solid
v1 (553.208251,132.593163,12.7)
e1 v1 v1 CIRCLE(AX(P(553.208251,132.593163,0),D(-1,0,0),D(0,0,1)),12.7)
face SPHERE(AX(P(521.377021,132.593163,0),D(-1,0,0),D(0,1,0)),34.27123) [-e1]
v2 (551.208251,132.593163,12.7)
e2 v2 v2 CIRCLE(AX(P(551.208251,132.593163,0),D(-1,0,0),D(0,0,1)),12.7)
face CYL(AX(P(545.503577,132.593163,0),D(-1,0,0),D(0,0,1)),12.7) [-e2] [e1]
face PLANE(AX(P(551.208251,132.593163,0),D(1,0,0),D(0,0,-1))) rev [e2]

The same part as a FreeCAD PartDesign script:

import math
import FreeCAD as App
import Part
import Sketcher
from FreeCAD import Vector
Q = App.Units.Quantity

doc = App.newDocument("Part")
params = doc.addObject("Spreadsheet::Sheet", "Params")
for row, (alias, value) in enumerate([
    ("sketch1_width", "2 mm"),
    ("sketch1_height", "12.7 mm"),
    ("sketch1_width2", "4.44 mm"),
    ("revolution_angle", "360 deg"),
], start=1):
    params.set(f"A{row}", alias)
    params.set(f"B{row}", "=" + value)
    params.setAlias(f"B{row}", alias)

body = doc.addObject("PartDesign::Body", "Body")

# Sketch on XY plane
sketch1 = body.newObject("Sketcher::SketchObject", "Sketch")
sketch1.AttachmentSupport = (doc.getObject("XY_Plane"), [""])
sketch1.MapMode = "FlatFace"
sketch1.addGeometry([
    Part.LineSegment(Vector(551.2, 145.3, 0), Vector(551.2, 132.6, 0)),
    Part.LineSegment(Vector(551.2, 132.6, 0), Vector(555.6, 132.6, 0)),
    Part.ArcOfCircle(Part.Circle(Vector(521.4, 132.6, 0), Vector(0, 0, 1), 34.3), math.radians(0), math.radians(22)),
    Part.LineSegment(Vector(553.2, 145.3, 0), Vector(551.2, 145.3, 0)),
], False)
sketch1.addGeometry(Part.LineSegment(Vector(521.4, 132.6, 0), Vector(555.6, 132.6, 0)), True)  # axis
sketch1.addConstraint([
    Sketcher.Constraint("Coincident", 0, 2, 1, 1),
    Sketcher.Constraint("Coincident", 1, 2, 2, 1),
    Sketcher.Constraint("Coincident", 2, 2, 3, 1),
    Sketcher.Constraint("Coincident", 3, 2, 0, 1),
    Sketcher.Constraint("Vertical", 0),
    Sketcher.Constraint("Horizontal", 1),
    Sketcher.Constraint("Horizontal", 3),
    Sketcher.Constraint("Horizontal", 4),
    Sketcher.Constraint("Coincident", 4, 1, 2, 3),
    Sketcher.Constraint("Coincident", 4, 2, 1, 2),
    Sketcher.Constraint("DistanceX", 3, 2, 3, 1, Q("2 mm")),
    Sketcher.Constraint("DistanceY", 0, 2, 0, 1, Q("12.7 mm")),
    Sketcher.Constraint("DistanceX", 1, 1, 1, 2, Q("4.44 mm")),
    Sketcher.Constraint("DistanceX", -1, 1, 2, 3, Q("521.377021 mm")),
    Sketcher.Constraint("DistanceY", -1, 1, 2, 3, Q("132.593163 mm")),
])
sketch1.setExpression("Constraints[10]", "Params.sketch1_width")
sketch1.setExpression("Constraints[11]", "Params.sketch1_height")
sketch1.setExpression("Constraints[12]", "Params.sketch1_width2")
revolution = body.newObject("PartDesign::Revolution", "Revolution")
revolution.Profile = sketch1
revolution.ReferenceAxis = (sketch1, ["Axis0"])
revolution.setExpression("Angle", "Params.revolution_angle")

doc.recompute()
